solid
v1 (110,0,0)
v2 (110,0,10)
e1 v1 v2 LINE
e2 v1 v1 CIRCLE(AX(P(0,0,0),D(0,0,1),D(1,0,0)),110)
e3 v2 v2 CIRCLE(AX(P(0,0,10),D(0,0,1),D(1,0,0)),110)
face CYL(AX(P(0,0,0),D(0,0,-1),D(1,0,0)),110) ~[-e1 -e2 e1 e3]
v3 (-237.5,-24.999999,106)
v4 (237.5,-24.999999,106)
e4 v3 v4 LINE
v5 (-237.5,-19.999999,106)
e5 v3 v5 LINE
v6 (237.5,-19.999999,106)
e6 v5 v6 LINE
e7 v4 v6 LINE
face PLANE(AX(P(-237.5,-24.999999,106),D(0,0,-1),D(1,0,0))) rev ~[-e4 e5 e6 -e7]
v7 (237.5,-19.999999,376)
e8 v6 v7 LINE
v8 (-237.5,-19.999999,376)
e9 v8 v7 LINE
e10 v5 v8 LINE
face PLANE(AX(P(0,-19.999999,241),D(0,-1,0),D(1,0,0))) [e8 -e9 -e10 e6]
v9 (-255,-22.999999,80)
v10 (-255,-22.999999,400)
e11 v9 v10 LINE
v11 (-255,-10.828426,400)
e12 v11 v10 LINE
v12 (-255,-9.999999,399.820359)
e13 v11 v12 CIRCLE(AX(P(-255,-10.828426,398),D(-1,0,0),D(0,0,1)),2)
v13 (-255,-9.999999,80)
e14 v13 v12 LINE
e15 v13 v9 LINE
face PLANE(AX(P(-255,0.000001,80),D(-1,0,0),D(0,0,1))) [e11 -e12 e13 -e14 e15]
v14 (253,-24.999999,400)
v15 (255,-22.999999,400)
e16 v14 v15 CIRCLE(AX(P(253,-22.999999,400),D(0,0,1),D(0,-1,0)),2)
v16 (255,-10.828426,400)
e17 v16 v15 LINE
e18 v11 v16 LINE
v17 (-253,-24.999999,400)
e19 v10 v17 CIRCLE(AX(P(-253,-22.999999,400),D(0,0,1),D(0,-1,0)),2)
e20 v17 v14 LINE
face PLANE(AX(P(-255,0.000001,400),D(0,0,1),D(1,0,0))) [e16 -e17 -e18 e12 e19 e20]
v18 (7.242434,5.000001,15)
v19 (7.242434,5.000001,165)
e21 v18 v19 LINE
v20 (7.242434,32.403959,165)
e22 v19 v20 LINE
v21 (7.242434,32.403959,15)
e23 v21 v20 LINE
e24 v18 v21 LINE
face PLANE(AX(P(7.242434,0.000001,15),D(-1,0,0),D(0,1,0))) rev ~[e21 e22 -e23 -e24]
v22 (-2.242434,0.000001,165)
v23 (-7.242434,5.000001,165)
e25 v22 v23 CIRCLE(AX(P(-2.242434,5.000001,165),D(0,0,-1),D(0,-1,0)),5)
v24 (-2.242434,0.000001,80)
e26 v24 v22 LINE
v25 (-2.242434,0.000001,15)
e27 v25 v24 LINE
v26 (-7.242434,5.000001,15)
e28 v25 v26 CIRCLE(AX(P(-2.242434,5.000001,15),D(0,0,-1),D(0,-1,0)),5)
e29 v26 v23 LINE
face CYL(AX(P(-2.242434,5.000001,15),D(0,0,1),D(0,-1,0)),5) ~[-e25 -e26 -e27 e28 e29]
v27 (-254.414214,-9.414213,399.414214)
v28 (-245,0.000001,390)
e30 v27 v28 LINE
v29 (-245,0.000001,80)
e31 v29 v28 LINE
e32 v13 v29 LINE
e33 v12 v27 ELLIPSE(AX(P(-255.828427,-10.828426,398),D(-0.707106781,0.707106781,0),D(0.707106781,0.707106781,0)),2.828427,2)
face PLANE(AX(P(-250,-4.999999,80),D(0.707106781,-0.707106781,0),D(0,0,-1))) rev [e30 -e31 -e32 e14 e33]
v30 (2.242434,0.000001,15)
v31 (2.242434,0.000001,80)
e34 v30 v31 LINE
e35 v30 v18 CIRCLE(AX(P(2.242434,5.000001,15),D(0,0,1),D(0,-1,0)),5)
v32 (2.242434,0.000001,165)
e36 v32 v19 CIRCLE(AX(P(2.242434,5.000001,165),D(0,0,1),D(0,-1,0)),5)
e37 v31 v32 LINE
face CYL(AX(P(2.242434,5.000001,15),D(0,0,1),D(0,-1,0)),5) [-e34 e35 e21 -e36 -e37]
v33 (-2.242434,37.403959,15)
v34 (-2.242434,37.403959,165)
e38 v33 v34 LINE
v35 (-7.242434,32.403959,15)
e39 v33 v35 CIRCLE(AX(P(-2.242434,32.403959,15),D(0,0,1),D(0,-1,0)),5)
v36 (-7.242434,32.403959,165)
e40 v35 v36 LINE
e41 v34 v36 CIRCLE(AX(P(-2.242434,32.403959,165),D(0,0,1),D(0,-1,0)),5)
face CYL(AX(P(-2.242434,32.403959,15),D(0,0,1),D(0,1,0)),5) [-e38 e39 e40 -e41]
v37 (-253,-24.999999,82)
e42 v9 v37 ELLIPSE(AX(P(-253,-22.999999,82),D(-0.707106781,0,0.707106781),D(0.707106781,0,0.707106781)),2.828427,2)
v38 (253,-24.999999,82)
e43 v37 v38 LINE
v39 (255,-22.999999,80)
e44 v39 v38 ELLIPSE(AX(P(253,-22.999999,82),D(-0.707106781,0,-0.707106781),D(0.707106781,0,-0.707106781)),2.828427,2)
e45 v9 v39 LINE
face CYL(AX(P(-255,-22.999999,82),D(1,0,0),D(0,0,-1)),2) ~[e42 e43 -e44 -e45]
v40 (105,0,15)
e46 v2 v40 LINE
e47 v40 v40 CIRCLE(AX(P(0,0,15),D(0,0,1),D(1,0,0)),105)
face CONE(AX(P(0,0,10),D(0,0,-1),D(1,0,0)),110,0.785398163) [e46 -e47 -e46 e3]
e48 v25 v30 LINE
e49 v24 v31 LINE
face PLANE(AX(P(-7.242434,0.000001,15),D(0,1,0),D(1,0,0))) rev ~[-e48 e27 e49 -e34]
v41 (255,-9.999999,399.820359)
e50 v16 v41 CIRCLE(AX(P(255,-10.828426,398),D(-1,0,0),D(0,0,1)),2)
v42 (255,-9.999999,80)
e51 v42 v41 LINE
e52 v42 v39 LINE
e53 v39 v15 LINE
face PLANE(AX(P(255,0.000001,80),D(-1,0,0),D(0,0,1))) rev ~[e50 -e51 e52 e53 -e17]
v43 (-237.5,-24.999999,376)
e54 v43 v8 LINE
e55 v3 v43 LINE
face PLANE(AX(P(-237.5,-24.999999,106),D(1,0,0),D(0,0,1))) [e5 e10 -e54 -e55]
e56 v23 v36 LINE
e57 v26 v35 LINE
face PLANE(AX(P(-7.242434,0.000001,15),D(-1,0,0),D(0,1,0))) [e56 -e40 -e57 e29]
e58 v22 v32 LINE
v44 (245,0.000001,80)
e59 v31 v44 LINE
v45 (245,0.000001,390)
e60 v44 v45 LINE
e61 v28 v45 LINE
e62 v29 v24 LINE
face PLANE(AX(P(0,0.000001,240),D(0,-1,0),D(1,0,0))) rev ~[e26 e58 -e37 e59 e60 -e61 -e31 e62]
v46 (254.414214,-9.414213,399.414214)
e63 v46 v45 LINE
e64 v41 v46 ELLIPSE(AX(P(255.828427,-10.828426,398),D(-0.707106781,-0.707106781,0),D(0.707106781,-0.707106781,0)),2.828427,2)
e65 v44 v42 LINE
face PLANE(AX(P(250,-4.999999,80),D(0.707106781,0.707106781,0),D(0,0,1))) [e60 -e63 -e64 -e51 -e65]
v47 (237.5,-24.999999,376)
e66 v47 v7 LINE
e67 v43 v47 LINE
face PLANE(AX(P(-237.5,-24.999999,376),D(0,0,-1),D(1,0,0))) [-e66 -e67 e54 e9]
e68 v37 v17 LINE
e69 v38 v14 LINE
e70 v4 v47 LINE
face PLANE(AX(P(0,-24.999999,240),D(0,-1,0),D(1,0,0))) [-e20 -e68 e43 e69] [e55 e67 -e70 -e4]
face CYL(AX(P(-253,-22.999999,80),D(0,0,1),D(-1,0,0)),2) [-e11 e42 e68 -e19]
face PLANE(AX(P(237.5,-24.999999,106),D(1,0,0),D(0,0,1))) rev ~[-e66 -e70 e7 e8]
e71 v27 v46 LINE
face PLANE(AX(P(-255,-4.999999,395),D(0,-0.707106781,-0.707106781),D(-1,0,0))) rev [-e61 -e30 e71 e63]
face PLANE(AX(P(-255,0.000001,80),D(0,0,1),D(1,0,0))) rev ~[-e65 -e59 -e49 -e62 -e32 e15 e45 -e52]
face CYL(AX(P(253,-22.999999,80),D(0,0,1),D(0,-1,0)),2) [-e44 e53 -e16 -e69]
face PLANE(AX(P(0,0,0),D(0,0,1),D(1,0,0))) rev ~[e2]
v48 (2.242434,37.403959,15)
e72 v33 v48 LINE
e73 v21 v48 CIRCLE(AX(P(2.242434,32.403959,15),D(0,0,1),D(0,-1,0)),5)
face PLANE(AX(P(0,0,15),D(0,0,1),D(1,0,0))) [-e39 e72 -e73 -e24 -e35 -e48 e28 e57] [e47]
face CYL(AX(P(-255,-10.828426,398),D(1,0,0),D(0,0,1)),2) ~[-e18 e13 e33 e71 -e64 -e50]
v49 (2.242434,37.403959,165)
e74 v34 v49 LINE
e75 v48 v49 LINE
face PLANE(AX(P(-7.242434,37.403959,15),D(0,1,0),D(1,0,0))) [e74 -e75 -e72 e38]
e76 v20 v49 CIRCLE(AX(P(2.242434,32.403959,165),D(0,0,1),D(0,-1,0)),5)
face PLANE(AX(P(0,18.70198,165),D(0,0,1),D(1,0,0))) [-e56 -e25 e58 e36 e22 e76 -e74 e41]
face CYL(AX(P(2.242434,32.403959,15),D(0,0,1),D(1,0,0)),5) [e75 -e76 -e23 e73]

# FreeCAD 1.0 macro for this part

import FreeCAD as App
import Part
import Sketcher
from FreeCAD import Vector


def edges_at(feature, points):
    """Names of the edges that pass closest to the given points."""
    edges = feature.Shape.Edges
    near = lambda p: min(range(len(edges)), key=lambda i: edges[i].distToShape(Part.Vertex(*p))[0])
    return sorted({f"Edge{near(p) + 1}" for p in points})


def add_polygon(sketch, points):
    """Adds a closed chain of lines whose ends are joined by coincident constraints."""
    first, n = sketch.GeometryCount, len(points)
    for a, b in zip(points, points[1:] + points[:1]):
        sketch.addGeometry(Part.LineSegment(App.Vector(*a, 0), App.Vector(*b, 0)), False)
    for i in range(n):
        sketch.addConstraint(Sketcher.Constraint("Coincident", first + i, 2, first + (i + 1) % n, 1))

doc = App.newDocument("Part")
body = doc.addObject("PartDesign::Body", "Body")

# Sketch on XY plane
sketch1 = body.newObject("Sketcher::SketchObject", "Sketch")
sketch1.AttachmentSupport = (doc.getObject("XY_Plane"), [""])
sketch1.MapMode = "FlatFace"
sketch1.addGeometry(Part.Circle(Vector(0, 0, 0), Vector(0, 0, 1), 110), False)
sketch1.addConstraint([
    Sketcher.Constraint("Coincident", 0, 3, -1, 1),
    Sketcher.Constraint("Diameter", 0, 220.0),
])
pad1 = body.newObject("PartDesign::Pad", "Pad")
pad1.Profile = sketch1
pad1.Length = 15
doc.recompute()

chamfer = body.newObject("PartDesign::Chamfer", "Chamfer")
chamfer.Base = (pad1, edges_at(pad1, [(-110, 0, 15)]))
chamfer.Size = 5

# Sketch on XY plane
sketch2 = body.newObject("Sketcher::SketchObject", "Sketch001")
sketch2.AttachmentSupport = (doc.getObject("XY_Plane"), [""])
sketch2.MapMode = "FlatFace"
sketch2.AttachmentOffset = App.Placement(Vector(0, 0, 15), App.Rotation())
add_polygon(sketch2, [(-7, 37), (-7, 0), (7, 0), (7, 37)])  # lines 0-3
sketch2.addConstraint([
    Sketcher.Constraint("Vertical", 0),
    Sketcher.Constraint("Horizontal", 1),
    Sketcher.Constraint("Vertical", 2),
    Sketcher.Constraint("Horizontal", 3),
    Sketcher.Constraint("Symmetric", 0, 2, 1, 2, -1, 1),
    Sketcher.Constraint("DistanceX", 1, 1, 1, 2, 14.484867),
    Sketcher.Constraint("DistanceY", 0, 2, 0, 1, 37.403958),
])
pad2 = body.newObject("PartDesign::Pad", "Pad001")
pad2.Profile = sketch2
pad2.Length = 150
doc.recompute()

fillet = body.newObject("PartDesign::Fillet", "Fillet")
fillet.Base = (pad2, edges_at(pad2, [
    (-7.242, 0, 90),
    (7.242, 0, 90),
    (7.242, 37.404, 90),
    (-7.242, 37.404, 90),
]))
fillet.Radius = 5

# Sketch on XZ plane
sketch3 = body.newObject("Sketcher::SketchObject", "Sketch002")
sketch3.AttachmentSupport = (doc.getObject("XZ_Plane"), [""])
sketch3.MapMode = "FlatFace"
sketch3.AttachmentOffset = App.Placement(Vector(0, 0, -0.000001), App.Rotation())
add_polygon(sketch3, [(-255, 400), (-255, 80), (255, 80), (255, 400)])  # lines 0-3
sketch3.addConstraint([
    Sketcher.Constraint("Vertical", 0),
    Sketcher.Constraint("Horizontal", 1),
    Sketcher.Constraint("Vertical", 2),
    Sketcher.Constraint("Horizontal", 3),
    Sketcher.Constraint("DistanceX", 1, 1, 1, 2, 510.0),
    Sketcher.Constraint("DistanceY", 0, 2, 0, 1, 320.0),
    Sketcher.Constraint("DistanceX", 0, 2, -1, 1, 255.0),
    Sketcher.Constraint("DistanceY", -1, 1, 0, 2, 80.0),
])
pad3 = body.newObject("PartDesign::Pad", "Pad002")
pad3.Profile = sketch3
pad3.Length = 25
doc.recompute()

chamfer2 = body.newObject("PartDesign::Chamfer", "Chamfer001")
chamfer2.Base = (pad3, edges_at(pad3, [(-255, 0, 240), (0, 0, 400), (255, 0, 240)]))
chamfer2.Size = 10
doc.recompute()

fillet2 = body.newObject("PartDesign::Fillet", "Fillet001")
fillet2.Base = (chamfer2, edges_at(chamfer2, [
    (-255, -25, 240),
    (0, -25, 80),
    (255, -25, 240),
    (0, -10, 400),
]))
fillet2.Radius = 2

# Sketch on XZ plane
sketch4 = body.newObject("Sketcher::SketchObject", "Sketch003")
sketch4.AttachmentSupport = (doc.getObject("XZ_Plane"), [""])
sketch4.MapMode = "FlatFace"
sketch4.AttachmentOffset = App.Placement(Vector(0, 0, 24.999999), App.Rotation())
add_polygon(sketch4, [(-238, 376), (-238, 106), (238, 106), (238, 376)])  # lines 0-3
sketch4.addConstraint([
    Sketcher.Constraint("Vertical", 0),
    Sketcher.Constraint("Horizontal", 1),
    Sketcher.Constraint("Vertical", 2),
    Sketcher.Constraint("Horizontal", 3),
    Sketcher.Constraint("DistanceX", 1, 1, 1, 2, 475.0),
    Sketcher.Constraint("DistanceY", 0, 2, 0, 1, 270.0),
    Sketcher.Constraint("DistanceY", -1, 1, 0, 2, 106.0),
    Sketcher.Constraint("DistanceX", 0, 2, -1, 1, 237.5),
])
pocket1 = body.newObject("PartDesign::Pocket", "Pocket")
pocket1.Profile = sketch4
pocket1.Length = 5

doc.recompute()
